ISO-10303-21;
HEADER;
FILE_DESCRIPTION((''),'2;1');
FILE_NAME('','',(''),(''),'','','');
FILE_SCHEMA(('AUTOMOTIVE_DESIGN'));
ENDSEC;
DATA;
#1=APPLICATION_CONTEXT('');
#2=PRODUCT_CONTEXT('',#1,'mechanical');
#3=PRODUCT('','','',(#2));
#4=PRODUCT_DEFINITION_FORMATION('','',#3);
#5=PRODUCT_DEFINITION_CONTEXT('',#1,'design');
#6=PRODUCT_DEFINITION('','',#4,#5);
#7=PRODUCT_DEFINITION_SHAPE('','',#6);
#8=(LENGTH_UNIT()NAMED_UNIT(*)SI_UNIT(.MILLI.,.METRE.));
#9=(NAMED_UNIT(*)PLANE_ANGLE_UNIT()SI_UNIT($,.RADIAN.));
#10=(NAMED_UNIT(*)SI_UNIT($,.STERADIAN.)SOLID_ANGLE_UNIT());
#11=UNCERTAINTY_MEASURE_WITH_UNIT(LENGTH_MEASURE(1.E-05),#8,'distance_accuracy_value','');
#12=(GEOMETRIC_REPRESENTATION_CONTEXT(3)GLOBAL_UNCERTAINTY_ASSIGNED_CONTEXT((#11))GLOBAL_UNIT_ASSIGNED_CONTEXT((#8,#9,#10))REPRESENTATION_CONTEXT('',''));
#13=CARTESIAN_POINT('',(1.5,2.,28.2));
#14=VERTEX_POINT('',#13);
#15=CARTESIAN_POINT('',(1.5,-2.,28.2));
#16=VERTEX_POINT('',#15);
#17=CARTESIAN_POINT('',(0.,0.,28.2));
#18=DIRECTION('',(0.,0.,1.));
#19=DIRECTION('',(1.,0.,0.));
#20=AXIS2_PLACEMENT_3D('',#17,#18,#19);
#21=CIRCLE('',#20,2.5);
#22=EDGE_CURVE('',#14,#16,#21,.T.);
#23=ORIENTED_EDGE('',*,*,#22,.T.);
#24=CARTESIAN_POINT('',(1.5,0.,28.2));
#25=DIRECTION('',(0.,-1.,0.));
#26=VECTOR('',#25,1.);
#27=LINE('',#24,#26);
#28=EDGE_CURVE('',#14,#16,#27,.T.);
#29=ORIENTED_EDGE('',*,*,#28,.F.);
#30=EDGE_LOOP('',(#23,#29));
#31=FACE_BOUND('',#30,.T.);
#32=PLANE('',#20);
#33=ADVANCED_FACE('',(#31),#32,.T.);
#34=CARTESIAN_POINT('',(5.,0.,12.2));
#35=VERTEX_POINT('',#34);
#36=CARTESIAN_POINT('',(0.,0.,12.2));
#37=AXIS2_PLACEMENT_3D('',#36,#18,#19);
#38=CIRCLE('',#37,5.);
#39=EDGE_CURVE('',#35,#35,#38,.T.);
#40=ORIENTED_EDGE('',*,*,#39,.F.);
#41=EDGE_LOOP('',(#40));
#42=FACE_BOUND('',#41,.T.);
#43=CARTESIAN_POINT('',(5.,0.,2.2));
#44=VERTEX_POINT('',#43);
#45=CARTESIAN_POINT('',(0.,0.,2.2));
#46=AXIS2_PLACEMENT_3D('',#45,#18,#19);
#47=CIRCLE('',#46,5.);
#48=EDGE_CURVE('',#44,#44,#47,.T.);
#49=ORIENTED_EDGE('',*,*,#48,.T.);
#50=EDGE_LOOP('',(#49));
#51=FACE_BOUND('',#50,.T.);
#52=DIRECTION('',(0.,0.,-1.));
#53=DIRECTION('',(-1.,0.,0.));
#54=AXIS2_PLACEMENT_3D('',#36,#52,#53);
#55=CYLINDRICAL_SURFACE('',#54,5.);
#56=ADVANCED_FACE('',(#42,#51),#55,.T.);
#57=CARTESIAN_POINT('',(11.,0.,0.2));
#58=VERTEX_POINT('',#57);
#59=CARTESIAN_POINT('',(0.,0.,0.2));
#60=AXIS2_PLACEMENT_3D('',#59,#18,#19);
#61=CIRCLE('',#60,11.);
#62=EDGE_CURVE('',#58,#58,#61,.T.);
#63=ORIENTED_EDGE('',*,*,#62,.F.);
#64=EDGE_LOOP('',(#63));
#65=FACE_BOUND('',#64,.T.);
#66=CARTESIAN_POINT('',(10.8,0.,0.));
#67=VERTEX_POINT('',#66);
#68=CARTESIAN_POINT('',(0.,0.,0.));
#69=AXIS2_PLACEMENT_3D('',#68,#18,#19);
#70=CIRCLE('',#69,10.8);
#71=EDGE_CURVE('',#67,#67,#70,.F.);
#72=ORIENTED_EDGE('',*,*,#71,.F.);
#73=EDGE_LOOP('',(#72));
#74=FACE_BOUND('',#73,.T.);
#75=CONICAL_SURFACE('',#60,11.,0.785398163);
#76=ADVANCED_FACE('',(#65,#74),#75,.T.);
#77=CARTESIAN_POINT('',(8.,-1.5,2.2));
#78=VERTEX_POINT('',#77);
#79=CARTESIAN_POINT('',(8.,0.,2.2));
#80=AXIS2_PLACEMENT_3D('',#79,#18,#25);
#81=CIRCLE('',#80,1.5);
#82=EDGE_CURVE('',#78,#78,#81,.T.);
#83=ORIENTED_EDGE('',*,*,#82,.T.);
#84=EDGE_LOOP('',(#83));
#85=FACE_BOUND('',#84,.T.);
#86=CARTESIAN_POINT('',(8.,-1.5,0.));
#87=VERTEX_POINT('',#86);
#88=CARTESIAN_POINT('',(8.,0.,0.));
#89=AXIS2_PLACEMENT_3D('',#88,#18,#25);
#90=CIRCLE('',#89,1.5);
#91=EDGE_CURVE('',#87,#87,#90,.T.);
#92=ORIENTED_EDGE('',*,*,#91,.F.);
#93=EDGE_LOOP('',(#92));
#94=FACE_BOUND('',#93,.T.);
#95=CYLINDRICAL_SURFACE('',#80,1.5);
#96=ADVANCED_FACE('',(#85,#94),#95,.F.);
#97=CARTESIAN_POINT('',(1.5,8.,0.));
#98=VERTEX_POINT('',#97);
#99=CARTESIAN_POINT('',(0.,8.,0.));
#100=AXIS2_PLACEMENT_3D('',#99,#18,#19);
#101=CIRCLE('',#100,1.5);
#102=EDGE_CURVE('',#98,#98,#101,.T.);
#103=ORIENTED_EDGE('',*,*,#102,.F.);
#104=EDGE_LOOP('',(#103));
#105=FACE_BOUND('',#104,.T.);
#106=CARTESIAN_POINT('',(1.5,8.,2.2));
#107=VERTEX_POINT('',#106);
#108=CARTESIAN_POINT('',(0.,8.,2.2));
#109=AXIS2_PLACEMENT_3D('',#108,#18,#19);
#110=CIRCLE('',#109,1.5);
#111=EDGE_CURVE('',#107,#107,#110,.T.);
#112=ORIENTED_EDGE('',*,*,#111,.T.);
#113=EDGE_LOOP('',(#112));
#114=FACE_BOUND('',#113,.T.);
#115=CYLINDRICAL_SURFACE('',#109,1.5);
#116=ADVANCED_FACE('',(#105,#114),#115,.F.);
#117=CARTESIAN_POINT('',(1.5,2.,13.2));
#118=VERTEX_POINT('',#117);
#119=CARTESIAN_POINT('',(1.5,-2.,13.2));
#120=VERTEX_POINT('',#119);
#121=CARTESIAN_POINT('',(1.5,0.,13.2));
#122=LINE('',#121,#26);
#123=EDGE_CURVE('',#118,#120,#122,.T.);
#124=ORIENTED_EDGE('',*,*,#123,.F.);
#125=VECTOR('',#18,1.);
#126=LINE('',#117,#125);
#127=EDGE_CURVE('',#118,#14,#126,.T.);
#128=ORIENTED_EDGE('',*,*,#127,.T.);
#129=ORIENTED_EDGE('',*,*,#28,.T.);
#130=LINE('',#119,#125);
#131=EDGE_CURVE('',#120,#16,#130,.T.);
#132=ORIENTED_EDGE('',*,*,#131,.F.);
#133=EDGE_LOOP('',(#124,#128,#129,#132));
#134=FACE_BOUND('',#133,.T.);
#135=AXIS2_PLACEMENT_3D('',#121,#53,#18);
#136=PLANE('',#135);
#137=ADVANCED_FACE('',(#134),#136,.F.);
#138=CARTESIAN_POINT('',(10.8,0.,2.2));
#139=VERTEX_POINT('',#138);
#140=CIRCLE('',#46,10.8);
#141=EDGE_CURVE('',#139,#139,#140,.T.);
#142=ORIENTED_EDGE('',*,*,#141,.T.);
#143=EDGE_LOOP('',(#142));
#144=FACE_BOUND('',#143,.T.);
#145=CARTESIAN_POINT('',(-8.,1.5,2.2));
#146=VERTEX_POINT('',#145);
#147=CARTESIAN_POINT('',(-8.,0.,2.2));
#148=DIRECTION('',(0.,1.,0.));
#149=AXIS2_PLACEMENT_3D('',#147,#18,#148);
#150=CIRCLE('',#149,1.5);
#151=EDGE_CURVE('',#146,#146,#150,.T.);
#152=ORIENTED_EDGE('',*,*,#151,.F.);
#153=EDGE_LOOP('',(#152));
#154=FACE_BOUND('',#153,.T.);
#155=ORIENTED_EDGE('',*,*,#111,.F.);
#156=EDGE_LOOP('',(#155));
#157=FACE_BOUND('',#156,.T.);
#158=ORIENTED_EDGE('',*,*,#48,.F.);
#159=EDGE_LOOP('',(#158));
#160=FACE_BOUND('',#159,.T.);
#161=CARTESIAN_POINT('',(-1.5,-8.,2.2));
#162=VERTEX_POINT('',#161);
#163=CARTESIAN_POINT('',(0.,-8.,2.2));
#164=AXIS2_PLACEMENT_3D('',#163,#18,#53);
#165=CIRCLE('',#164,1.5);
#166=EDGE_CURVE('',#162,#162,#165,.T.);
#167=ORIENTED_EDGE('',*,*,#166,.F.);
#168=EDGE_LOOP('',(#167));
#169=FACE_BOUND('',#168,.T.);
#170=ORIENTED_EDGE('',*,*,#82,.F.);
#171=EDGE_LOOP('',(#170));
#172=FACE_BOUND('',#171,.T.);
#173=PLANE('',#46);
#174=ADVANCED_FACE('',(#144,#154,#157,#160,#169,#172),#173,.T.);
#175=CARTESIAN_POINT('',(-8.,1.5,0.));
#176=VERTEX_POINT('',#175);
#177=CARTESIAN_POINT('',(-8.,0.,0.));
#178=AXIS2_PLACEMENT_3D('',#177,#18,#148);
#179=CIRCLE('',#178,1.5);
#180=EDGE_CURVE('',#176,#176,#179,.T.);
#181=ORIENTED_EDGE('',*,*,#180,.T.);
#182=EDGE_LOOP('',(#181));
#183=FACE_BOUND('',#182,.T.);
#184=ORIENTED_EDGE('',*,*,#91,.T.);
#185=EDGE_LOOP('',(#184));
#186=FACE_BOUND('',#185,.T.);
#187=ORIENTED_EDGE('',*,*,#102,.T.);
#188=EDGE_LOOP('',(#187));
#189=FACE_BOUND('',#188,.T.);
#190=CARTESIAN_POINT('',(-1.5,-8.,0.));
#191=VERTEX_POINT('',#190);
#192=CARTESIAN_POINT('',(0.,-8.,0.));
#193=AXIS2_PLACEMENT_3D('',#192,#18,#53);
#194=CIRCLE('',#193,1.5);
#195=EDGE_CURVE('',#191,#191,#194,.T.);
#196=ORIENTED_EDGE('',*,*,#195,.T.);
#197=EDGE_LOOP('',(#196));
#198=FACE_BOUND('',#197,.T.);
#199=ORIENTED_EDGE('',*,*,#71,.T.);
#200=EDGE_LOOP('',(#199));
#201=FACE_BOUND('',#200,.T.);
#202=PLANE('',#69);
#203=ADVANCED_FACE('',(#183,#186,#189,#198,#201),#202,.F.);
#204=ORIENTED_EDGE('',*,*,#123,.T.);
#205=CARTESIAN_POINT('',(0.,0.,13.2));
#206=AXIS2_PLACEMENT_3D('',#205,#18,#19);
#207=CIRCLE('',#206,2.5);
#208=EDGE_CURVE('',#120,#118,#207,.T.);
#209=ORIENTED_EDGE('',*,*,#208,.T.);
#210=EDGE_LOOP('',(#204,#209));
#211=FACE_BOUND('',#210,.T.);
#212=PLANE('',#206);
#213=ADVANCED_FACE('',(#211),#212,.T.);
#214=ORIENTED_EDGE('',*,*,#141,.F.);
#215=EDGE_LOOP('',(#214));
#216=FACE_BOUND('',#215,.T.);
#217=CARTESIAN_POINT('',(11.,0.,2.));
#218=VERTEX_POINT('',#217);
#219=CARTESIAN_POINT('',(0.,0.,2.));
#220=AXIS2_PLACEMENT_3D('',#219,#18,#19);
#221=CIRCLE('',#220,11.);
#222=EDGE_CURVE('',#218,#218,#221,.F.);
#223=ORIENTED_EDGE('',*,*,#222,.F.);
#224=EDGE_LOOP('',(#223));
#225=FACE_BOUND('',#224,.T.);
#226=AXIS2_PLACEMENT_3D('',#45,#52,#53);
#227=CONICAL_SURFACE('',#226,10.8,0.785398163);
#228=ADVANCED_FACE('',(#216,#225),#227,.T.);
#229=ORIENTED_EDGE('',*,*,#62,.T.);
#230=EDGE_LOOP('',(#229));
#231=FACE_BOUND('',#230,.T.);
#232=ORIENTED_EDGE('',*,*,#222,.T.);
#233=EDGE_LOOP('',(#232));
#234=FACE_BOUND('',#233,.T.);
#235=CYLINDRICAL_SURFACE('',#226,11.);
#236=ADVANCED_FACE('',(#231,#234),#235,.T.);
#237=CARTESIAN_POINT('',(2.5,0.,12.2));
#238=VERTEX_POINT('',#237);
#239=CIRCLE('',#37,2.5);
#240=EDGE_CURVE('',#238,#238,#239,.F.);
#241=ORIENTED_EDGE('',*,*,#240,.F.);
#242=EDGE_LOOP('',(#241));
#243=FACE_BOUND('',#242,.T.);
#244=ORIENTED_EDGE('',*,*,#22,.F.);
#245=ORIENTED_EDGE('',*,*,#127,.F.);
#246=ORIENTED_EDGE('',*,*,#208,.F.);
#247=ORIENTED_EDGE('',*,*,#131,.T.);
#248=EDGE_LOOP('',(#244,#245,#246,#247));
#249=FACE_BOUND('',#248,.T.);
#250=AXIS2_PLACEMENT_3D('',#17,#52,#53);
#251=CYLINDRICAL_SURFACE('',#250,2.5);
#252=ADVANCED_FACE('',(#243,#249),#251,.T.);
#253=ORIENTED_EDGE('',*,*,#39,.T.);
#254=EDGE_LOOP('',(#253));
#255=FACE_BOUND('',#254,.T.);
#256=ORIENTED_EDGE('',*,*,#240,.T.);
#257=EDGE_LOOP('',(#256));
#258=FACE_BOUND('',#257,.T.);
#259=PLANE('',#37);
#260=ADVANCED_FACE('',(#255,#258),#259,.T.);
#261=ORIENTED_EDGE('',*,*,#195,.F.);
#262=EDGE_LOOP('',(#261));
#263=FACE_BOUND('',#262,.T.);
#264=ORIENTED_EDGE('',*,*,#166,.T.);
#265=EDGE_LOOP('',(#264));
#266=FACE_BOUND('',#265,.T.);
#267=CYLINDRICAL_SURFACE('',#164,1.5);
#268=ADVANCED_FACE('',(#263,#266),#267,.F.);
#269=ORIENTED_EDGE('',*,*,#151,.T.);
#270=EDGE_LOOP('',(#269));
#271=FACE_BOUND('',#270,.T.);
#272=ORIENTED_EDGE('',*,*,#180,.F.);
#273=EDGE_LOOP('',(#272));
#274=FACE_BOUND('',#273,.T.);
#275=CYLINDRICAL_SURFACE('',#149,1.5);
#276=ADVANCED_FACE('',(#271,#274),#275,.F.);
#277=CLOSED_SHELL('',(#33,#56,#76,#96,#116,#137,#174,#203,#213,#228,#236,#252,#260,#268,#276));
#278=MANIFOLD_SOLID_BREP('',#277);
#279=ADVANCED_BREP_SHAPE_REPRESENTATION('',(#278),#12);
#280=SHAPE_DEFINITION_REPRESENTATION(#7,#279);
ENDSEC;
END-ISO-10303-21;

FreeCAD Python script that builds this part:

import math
import FreeCAD as App
import Part
import Sketcher

V = App.Vector


def edges_at(feature, points):
    """Names of the edges that pass closest to the given points."""
    edges = feature.Shape.Edges
    near = lambda p: min(range(len(edges)), key=lambda i: edges[i].distToShape(Part.Vertex(*p))[0])
    return sorted({f"Edge{near(p) + 1}" for p in points})

doc = App.newDocument("Part")
body = doc.addObject("PartDesign::Body", "Body")

# Sketch on XY plane
sketch1 = body.newObject("Sketcher::SketchObject", "Sketch")
sketch1.AttachmentSupport = (doc.getObject("XY_Plane"), [""])
sketch1.MapMode = "FlatFace"
sketch1.addGeometry(Part.Circle(V(0, 0, 0), V(0, 0, 1), 11), False)
sketch1.addConstraint([
    Sketcher.Constraint("Coincident", 0, 3, -1, 1),
    Sketcher.Constraint("Diameter", 0, 22.0),
])
pad1 = body.newObject("PartDesign::Pad", "Pad")
pad1.Profile = sketch1
pad1.Length = 2.2

# Sketch on XY plane
sketch2 = body.newObject("Sketcher::SketchObject", "Sketch001")
sketch2.AttachmentSupport = (doc.getObject("XY_Plane"), [""])
sketch2.MapMode = "FlatFace"
sketch2.AttachmentOffset = App.Placement(V(0, 0, 2.2), App.Rotation())
sketch2.addGeometry(Part.Circle(V(0, 0, 0), V(0, 0, 1), 5), False)
sketch2.addConstraint([
    Sketcher.Constraint("Coincident", 0, 3, -1, 1),
    Sketcher.Constraint("Diameter", 0, 10.0),
])
pad2 = body.newObject("PartDesign::Pad", "Pad001")
pad2.Profile = sketch2
pad2.Length = 10

# Sketch on XY plane
sketch3 = body.newObject("Sketcher::SketchObject", "Sketch002")
sketch3.AttachmentSupport = (doc.getObject("XY_Plane"), [""])
sketch3.MapMode = "FlatFace"
sketch3.AttachmentOffset = App.Placement(V(0, 0, 2.2), App.Rotation())
sketch3.addGeometry(Part.Circle(V(0, 8, 0), V(0, 0, 1), 1.5), False)
sketch3.addConstraint([
    Sketcher.Constraint("PointOnObject", 0, 3, -2),
    Sketcher.Constraint("Diameter", 0, 3.0),
    Sketcher.Constraint("DistanceY", -1, 1, 0, 3, 8.0),
])
doc.recompute()
hole = body.newObject("PartDesign::Hole", "Hole")
hole.Profile = sketch3
hole.ThreadType = "None"
hole.Diameter = 3
hole.DepthType = "ThroughAll"
doc.recompute()

polarpattern = body.newObject("PartDesign::PolarPattern", "PolarPattern")
polarpattern.Originals = [hole]
polarpattern.Axis = (doc.getObject("Z_Axis"), [""])
polarpattern.Angle = 360
polarpattern.Occurrences = 4
body.Tip = polarpattern
doc.recompute()

chamfer = body.newObject("PartDesign::Chamfer", "Chamfer")
chamfer.Base = (polarpattern, edges_at(polarpattern, [(-11, 0, 0), (-11, 0, 2.2)]))
chamfer.Size = 0.2

# Sketch on XY plane
sketch4 = body.newObject("Sketcher::SketchObject", "Sketch003")
sketch4.AttachmentSupport = (doc.getObject("XY_Plane"), [""])
sketch4.MapMode = "FlatFace"
sketch4.AttachmentOffset = App.Placement(V(0, 0, 2.2), App.Rotation())
sketch4.addGeometry(Part.Circle(V(0, 0, 0), V(0, 0, 1), 2.5), False)
sketch4.addConstraint([
    Sketcher.Constraint("Coincident", 0, 3, -1, 1),
    Sketcher.Constraint("Diameter", 0, 5.0),
])
pad3 = body.newObject("PartDesign::Pad", "Pad002")
pad3.Profile = sketch4
pad3.Length = 26

# Sketch on XY plane
sketch5 = body.newObject("Sketcher::SketchObject", "Sketch004")
sketch5.AttachmentSupport = (doc.getObject("XY_Plane"), [""])
sketch5.MapMode = "FlatFace"
sketch5.AttachmentOffset = App.Placement(V(0, 0, 13.2), App.Rotation())
sketch5.addGeometry([
    Part.LineSegment(V(1.5, 2, 0), V(1.5, -2, 0)),
    Part.ArcOfCircle(Part.Circle(V(0, 0, 0), V(0, 0, 1), 2.5), math.radians(-53), math.radians(53)),
], False)
sketch5.addConstraint([
    Sketcher.Constraint("Coincident", 0, 1, 1, 2),
    Sketcher.Constraint("Coincident", 1, 1, 0, 2),
    Sketcher.Constraint("Vertical", 0),
    Sketcher.Constraint("Coincident", 1, 3, -1, 1),
    Sketcher.Constraint("Radius", 1, 2.5),
    Sketcher.Constraint("DistanceY", 0, 2, 0, 1, 4.0),
])
pocket1 = body.newObject("PartDesign::Pocket", "Pocket")
pocket1.Profile = sketch5
pocket1.Length = 15
pocket1.Reversed = True

doc.recompute()
